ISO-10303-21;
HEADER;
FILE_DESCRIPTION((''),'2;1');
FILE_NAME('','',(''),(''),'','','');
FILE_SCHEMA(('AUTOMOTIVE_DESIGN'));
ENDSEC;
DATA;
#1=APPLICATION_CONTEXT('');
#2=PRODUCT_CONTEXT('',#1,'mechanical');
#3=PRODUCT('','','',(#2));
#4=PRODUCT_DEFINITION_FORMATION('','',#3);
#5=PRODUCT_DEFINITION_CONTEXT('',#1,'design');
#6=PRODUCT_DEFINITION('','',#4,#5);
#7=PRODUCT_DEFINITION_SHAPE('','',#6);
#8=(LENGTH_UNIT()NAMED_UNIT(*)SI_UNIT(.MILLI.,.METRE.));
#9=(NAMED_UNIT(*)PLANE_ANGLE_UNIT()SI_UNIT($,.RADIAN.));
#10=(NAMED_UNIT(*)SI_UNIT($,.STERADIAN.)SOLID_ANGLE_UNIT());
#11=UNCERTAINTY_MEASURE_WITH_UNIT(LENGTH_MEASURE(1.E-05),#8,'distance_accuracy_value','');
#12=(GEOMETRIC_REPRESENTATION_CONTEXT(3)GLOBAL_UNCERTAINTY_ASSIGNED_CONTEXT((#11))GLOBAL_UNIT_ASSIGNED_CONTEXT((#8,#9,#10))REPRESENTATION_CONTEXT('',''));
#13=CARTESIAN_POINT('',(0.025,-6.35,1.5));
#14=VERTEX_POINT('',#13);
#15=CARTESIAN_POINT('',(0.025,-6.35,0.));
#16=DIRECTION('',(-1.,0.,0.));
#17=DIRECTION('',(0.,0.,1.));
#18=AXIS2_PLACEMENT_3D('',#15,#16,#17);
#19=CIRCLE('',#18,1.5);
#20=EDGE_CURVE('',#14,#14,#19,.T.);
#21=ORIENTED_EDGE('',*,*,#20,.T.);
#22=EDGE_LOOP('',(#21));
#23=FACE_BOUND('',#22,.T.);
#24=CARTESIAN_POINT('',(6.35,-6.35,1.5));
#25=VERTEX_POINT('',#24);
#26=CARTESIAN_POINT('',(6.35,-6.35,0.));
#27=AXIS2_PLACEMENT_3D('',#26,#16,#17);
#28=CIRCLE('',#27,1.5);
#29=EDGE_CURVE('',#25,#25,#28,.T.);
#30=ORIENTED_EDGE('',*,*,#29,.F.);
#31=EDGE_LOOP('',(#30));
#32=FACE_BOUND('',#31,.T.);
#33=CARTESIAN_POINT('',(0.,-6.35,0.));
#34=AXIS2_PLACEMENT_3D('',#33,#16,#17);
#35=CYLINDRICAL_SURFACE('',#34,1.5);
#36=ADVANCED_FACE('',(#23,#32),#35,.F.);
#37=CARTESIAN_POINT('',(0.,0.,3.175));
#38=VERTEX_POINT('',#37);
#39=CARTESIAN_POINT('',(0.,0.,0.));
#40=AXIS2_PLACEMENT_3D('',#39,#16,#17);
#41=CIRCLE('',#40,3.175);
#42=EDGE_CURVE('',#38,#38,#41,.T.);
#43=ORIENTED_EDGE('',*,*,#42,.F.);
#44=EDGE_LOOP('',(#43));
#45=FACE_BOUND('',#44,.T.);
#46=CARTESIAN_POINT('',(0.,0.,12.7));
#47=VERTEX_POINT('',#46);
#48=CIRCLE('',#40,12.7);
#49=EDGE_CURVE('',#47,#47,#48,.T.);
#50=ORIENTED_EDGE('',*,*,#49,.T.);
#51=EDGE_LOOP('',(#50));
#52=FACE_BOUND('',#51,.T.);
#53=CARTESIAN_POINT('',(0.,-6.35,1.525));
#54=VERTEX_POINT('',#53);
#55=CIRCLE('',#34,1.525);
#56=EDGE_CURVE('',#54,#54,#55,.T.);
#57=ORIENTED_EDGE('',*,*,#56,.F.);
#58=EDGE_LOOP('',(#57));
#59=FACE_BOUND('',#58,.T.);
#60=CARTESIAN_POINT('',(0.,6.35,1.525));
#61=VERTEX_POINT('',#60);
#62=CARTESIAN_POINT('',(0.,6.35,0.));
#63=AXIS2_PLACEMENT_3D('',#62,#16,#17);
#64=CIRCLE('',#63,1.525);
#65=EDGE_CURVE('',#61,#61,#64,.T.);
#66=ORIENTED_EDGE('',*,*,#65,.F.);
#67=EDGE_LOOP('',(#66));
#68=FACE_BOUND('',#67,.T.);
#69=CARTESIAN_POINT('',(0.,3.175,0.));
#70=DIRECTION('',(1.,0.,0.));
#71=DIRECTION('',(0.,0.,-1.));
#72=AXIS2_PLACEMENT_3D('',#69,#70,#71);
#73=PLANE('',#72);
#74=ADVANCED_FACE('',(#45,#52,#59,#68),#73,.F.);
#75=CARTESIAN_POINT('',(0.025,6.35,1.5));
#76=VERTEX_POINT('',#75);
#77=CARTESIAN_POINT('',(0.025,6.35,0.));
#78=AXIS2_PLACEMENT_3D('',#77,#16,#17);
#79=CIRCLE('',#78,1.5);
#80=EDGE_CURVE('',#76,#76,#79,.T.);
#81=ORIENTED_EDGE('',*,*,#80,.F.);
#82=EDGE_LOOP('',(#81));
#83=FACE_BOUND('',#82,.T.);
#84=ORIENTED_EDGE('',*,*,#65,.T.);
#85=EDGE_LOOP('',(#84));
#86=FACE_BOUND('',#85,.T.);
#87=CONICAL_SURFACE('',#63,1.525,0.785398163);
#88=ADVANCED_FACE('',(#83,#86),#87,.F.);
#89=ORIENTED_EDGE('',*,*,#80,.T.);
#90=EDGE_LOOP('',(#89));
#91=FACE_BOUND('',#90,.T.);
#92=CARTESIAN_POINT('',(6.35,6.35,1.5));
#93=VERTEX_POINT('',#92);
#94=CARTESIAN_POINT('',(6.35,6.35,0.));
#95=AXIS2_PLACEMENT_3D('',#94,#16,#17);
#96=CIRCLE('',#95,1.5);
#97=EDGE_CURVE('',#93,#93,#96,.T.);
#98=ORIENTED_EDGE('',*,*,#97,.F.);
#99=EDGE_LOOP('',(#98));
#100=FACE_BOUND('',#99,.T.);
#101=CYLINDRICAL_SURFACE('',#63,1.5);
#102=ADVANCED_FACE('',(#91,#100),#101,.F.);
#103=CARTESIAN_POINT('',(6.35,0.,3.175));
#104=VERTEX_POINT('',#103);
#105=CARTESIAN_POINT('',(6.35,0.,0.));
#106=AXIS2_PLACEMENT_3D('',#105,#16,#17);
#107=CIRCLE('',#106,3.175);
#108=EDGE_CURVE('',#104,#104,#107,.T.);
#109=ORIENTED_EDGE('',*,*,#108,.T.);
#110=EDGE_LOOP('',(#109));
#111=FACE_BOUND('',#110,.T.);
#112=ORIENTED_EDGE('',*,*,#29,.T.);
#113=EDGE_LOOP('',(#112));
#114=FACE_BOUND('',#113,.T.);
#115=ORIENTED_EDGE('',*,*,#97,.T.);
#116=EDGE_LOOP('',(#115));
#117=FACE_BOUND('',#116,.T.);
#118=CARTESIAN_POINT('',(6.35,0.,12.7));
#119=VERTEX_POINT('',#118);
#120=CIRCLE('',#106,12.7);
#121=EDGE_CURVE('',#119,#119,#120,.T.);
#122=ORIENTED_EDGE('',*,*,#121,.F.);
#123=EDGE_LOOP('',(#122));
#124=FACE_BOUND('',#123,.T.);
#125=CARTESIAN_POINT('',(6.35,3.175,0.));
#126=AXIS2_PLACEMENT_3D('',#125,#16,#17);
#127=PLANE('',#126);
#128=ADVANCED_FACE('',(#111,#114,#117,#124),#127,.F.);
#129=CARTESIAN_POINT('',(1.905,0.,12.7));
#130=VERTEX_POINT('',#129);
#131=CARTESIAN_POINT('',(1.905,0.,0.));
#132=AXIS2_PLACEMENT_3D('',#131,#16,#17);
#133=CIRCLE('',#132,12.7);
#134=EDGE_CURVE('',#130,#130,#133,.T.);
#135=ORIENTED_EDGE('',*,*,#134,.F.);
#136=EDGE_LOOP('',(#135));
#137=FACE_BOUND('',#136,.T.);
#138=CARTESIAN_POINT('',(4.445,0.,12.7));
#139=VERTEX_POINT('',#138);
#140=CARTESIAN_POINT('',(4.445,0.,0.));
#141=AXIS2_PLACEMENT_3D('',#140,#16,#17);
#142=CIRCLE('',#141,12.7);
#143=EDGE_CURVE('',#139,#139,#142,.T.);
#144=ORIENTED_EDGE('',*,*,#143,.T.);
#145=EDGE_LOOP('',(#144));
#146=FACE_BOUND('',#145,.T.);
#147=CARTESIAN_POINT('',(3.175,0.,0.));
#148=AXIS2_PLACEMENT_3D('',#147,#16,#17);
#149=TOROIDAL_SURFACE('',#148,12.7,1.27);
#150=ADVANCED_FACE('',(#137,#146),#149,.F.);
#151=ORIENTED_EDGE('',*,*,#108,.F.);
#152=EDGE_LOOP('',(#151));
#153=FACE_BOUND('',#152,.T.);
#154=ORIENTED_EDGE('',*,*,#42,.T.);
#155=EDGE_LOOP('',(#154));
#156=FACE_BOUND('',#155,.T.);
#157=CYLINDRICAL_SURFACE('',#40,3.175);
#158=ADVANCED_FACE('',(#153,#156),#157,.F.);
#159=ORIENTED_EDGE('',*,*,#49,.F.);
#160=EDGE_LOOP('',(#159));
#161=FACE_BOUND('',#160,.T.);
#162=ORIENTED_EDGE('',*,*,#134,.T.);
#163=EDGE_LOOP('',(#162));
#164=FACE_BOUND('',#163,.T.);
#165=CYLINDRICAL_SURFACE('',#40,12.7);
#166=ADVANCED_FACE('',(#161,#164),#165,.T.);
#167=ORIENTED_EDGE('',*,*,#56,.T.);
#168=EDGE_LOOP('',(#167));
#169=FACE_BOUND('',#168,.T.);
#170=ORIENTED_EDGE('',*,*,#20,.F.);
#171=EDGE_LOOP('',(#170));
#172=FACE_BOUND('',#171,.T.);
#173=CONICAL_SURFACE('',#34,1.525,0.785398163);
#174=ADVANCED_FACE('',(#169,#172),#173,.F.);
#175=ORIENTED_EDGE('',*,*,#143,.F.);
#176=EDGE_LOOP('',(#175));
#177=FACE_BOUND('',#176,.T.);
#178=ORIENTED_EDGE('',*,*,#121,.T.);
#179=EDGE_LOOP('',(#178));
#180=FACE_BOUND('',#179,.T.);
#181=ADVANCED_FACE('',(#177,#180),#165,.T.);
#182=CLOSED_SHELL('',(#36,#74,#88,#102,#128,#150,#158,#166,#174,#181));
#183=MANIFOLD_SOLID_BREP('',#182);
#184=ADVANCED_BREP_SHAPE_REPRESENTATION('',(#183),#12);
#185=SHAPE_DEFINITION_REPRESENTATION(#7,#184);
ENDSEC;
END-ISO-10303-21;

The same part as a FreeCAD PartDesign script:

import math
import FreeCAD as App
import Part
import Sketcher
from FreeCAD import Vector
Q = App.Units.Quantity

doc = App.newDocument("Part")
params = doc.addObject("Spreadsheet::Sheet", "Params")
for row, (alias, value) in enumerate([
    ("sketch1_radius", "0.05 in"),
    ("sketch1_width", "0.25 in"),
    ("sketch1_height", "0.375 in"),
    ("revolution_angle", "360 deg"),
    ("hole_diameter", "3 mm"),
    ("hole_csink_diameter", "3.05 mm"),
], start=1):
    params.set(f"A{row}", alias)
    params.set(f"B{row}", "=" + value)
    params.setAlias(f"B{row}", alias)

body = doc.addObject("PartDesign::Body", "Body")

# Sketch on XY plane
sketch1 = body.newObject("Sketcher::SketchObject", "Sketch")
sketch1.AttachmentSupport = (doc.getObject("XY_Plane"), [""])
sketch1.MapMode = "FlatFace"
sketch1.addGeometry([
    Part.LineSegment(Vector(0, 3.2, 0), Vector(6.3, 3.2, 0)),  # 0
    Part.LineSegment(Vector(6.3, 3.2, 0), Vector(6.3, 12.7, 0)),  # 1
    Part.LineSegment(Vector(6.3, 12.7, 0), Vector(4.4, 12.7, 0)),  # 2
    Part.ArcOfCircle(Part.Circle(Vector(3.2, 12.7, 0), Vector(0, 0, 1), 1.3), math.radians(180), math.radians(360)),  # 3
    Part.LineSegment(Vector(1.9, 12.7, 0), Vector(0, 12.7, 0)),  # 4
    Part.LineSegment(Vector(0, 12.7, 0), Vector(0, 3.2, 0)),  # 5
], False)
sketch1.addConstraint([
    Sketcher.Constraint("Coincident", 0, 2, 1, 1),
    Sketcher.Constraint("Coincident", 1, 2, 2, 1),
    Sketcher.Constraint("Coincident", 2, 2, 3, 2),
    Sketcher.Constraint("Coincident", 3, 1, 4, 1),
    Sketcher.Constraint("Coincident", 4, 2, 5, 1),
    Sketcher.Constraint("Coincident", 5, 2, 0, 1),
    Sketcher.Constraint("Horizontal", 0),
    Sketcher.Constraint("Vertical", 1),
    Sketcher.Constraint("Horizontal", 2),
    Sketcher.Constraint("Horizontal", 4),
    Sketcher.Constraint("Vertical", 5),
    Sketcher.Constraint("PointOnObject", 4, 2, -2),
    Sketcher.Constraint("Horizontal", 3, 3, 1, 2),
    Sketcher.Constraint("Horizontal", 2, 2, 3, 1),
    Sketcher.Constraint("Equal", 2, 4),
    Sketcher.Constraint("Radius", 3, Q("0.05 in")),
    Sketcher.Constraint("DistanceX", 0, 1, 0, 2, Q("0.25 in")),
    Sketcher.Constraint("DistanceY", -1, 1, 3, 3, Q("0.5 in")),
    Sketcher.Constraint("DistanceY", 1, 1, 1, 2, Q("0.375 in")),
])
sketch1.setExpression("Constraints[15]", "Params.sketch1_radius")
sketch1.setExpression("Constraints[16]", "Params.sketch1_width")
sketch1.setExpression("Constraints[18]", "Params.sketch1_height")
revolution = body.newObject("PartDesign::Revolution", "Revolution")
revolution.Profile = sketch1
revolution.ReferenceAxis = (sketch1, ["H_Axis"])
revolution.setExpression("Angle", "Params.revolution_angle")

# Sketch on YZ plane
sketch2 = body.newObject("Sketcher::SketchObject", "Sketch001")
sketch2.AttachmentSupport = (doc.getObject("YZ_Plane"), [""])
sketch2.MapMode = "FlatFace"
sketch2.addGeometry([
    Part.Circle(Vector(6.3, 0, 0), Vector(0, 0, 1), 1.5),
    Part.Circle(Vector(-6.3, 0, 0), Vector(0, 0, 1), 1.5),
], False)
sketch2.addConstraint([
    Sketcher.Constraint("Equal", 0, 1),
    Sketcher.Constraint("Symmetric", 0, 3, 1, 3, -1, 1),
    Sketcher.Constraint("PointOnObject", 0, 3, -1),
    Sketcher.Constraint("DistanceX", 1, 3, 0, 3, Q("0.5 in")),
    Sketcher.Constraint("Diameter", 0, 3.0),
])
doc.recompute()
hole = body.newObject("PartDesign::Hole", "Hole")
hole.Profile = sketch2
hole.ThreadType = "None"
hole.setExpression("Diameter", "Params.hole_diameter")
hole.DepthType = "ThroughAll"
hole.HoleCutType = "Countersink"
hole.setExpression("HoleCutDiameter", "Params.hole_csink_diameter")
hole.HoleCutCountersinkAngle = 90
hole.Reversed = True

doc.recompute()
